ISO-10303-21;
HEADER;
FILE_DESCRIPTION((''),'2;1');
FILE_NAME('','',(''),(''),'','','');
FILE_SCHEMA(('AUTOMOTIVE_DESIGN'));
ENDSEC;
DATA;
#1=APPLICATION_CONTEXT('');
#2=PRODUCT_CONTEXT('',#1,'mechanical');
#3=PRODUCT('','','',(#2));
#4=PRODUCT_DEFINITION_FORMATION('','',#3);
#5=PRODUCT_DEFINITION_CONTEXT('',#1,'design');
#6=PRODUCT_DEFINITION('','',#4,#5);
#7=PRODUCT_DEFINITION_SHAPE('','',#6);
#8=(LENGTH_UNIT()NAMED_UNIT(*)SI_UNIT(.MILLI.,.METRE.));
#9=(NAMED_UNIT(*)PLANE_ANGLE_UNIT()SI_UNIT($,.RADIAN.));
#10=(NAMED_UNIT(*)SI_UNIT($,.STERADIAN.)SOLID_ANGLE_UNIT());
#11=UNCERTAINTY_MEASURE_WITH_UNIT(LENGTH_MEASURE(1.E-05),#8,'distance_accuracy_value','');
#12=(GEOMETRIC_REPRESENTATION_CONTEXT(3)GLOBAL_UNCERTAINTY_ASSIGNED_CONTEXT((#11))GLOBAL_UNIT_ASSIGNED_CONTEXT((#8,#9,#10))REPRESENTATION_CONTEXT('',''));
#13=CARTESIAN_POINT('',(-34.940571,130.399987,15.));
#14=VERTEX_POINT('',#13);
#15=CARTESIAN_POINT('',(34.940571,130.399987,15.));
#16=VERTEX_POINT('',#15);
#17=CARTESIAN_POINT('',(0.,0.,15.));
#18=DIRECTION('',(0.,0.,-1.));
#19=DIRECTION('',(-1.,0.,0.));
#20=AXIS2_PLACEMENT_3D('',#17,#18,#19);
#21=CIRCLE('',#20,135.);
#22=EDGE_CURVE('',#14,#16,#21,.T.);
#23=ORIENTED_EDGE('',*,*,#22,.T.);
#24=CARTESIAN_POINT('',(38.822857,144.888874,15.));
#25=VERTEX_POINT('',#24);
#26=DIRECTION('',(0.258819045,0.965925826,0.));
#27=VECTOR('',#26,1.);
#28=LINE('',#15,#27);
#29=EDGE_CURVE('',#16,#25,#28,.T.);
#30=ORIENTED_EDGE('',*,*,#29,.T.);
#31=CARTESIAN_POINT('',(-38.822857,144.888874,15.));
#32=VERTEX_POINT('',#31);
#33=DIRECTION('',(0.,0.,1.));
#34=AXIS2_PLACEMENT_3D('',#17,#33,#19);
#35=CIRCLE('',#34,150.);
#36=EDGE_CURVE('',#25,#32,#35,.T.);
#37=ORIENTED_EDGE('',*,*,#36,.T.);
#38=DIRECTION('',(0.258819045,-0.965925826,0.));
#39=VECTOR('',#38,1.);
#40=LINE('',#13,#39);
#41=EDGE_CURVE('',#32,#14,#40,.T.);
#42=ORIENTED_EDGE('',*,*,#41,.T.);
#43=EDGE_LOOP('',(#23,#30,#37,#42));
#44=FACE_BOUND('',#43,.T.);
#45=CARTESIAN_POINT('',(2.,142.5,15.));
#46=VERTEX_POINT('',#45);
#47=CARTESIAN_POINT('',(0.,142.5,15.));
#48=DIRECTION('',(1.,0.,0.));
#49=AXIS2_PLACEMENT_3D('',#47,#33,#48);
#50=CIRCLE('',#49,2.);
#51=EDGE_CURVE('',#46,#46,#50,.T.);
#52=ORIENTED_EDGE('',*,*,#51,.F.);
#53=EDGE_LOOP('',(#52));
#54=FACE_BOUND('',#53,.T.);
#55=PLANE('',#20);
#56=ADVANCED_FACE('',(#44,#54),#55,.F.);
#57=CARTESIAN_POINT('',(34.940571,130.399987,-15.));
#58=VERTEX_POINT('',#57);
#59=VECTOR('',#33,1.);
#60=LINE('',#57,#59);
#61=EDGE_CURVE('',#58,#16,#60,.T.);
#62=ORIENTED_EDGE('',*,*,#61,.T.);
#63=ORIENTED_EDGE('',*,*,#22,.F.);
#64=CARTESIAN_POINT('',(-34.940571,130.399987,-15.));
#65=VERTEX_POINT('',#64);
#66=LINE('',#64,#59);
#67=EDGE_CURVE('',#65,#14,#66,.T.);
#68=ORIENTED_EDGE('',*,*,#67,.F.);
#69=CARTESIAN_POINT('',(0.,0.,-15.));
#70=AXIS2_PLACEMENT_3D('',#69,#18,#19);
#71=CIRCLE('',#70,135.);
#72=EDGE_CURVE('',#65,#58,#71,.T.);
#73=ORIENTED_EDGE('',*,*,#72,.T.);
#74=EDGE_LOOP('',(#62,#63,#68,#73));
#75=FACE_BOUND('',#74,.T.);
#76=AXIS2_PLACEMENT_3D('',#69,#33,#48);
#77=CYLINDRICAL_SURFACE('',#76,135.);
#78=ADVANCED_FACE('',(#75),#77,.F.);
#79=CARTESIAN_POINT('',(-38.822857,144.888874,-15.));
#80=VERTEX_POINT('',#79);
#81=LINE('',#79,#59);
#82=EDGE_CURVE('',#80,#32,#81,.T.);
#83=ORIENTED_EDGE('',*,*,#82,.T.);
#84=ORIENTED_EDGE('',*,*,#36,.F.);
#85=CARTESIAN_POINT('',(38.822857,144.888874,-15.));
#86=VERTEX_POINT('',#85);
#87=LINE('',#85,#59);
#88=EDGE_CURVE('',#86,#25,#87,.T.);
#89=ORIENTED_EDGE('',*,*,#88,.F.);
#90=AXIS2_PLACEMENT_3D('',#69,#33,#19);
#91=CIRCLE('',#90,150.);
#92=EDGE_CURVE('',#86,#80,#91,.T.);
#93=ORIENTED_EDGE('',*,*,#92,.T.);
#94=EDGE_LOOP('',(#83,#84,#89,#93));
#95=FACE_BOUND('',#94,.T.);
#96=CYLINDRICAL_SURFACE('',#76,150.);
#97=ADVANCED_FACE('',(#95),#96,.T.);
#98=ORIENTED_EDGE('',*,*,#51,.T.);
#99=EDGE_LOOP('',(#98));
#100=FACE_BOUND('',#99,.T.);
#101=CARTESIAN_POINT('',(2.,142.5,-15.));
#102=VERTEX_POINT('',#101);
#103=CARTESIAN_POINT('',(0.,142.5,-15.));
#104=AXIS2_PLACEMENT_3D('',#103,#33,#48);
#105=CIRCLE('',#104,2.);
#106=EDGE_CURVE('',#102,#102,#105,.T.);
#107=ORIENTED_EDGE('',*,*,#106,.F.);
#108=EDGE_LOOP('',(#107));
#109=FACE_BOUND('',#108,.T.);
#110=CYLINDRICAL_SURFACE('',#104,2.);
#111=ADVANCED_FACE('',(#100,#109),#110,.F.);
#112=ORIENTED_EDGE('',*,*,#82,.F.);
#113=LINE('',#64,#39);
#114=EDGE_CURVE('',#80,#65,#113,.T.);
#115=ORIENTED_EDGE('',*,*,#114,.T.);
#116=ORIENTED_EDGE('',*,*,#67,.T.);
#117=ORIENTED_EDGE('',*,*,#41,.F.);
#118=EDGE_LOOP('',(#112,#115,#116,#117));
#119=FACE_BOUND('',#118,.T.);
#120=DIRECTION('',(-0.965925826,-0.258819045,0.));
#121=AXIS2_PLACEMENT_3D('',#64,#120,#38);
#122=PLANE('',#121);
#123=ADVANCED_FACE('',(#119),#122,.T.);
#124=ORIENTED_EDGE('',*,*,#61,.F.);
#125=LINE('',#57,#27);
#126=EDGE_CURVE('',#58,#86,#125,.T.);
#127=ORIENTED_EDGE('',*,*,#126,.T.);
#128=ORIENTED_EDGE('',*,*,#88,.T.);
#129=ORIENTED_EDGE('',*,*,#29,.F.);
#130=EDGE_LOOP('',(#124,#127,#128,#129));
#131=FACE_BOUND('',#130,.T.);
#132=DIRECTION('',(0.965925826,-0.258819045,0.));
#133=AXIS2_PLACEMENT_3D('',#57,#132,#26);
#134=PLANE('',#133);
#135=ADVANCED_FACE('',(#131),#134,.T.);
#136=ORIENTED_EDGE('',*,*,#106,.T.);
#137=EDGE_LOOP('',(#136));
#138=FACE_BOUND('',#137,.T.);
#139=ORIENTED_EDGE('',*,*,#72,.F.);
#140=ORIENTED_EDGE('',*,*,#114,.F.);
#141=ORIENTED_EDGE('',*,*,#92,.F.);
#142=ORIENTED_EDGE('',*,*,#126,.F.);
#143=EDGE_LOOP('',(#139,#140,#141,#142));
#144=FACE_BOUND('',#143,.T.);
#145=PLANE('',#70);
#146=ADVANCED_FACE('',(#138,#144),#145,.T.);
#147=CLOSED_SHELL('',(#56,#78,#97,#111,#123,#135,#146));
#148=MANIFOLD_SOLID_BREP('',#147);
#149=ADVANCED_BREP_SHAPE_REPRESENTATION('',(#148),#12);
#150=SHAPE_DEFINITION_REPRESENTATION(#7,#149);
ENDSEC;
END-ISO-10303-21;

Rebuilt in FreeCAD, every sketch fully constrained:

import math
import FreeCAD as App
import Part
import Sketcher

V = App.Vector
Q = App.Units.Quantity

doc = App.newDocument("Part")
body = doc.addObject("PartDesign::Body", "Body")

# Sketch on XY plane
sketch1 = body.newObject("Sketcher::SketchObject", "Sketch")
sketch1.AttachmentSupport = (doc.getObject("XY_Plane"), [""])
sketch1.MapMode = "FlatFace"
sketch1.addGeometry(Part.LineSegment(V(-38.8, 144.9, 0), V(-34.9, 130.4, 0)), False)
sketch1.addGeometry(Part.ArcOfCircle(Part.Circle(V(0, 0, 0), V(0, 0, 1), 135), math.radians(75), math.radians(105)), False)
sketch1.addGeometry(Part.LineSegment(V(34.9, 130.4, 0), V(38.8, 144.9, 0)), False)
sketch1.addGeometry(Part.ArcOfCircle(Part.Circle(V(0, 0, 0), V(0, 0, 1), 150), math.radians(75), math.radians(105)), False)
sketch1.addGeometry(Part.Circle(V(0, 142.5, 0), V(0, 0, 1), 2), False)
sketch1.addConstraint(Sketcher.Constraint("Coincident", 0, 2, 1, 2))
sketch1.addConstraint(Sketcher.Constraint("Coincident", 1, 1, 2, 1))
sketch1.addConstraint(Sketcher.Constraint("Coincident", 2, 2, 3, 1))
sketch1.addConstraint(Sketcher.Constraint("Coincident", 3, 2, 0, 1))
sketch1.addConstraint(Sketcher.Constraint("Coincident", 1, 3, -1, 1))
sketch1.addConstraint(Sketcher.Constraint("Coincident", 3, 3, -1, 1))
sketch1.addConstraint(Sketcher.Constraint("PointOnObject", 4, 3, -2))
sketch1.addConstraint(Sketcher.Constraint("Horizontal", 0, 2, 1, 1))
sketch1.addConstraint(Sketcher.Constraint("Horizontal", 2, 2, 3, 2))
sketch1.addConstraint(Sketcher.Constraint("Diameter", 4, Q("4 mm")))
sketch1.addConstraint(Sketcher.Constraint("Radius", 1, Q("135 mm")))
sketch1.addConstraint(Sketcher.Constraint("Radius", 3, Q("150 mm")))
sketch1.addConstraint(Sketcher.Constraint("Angle", 0, Q("-75 deg")))
sketch1.addConstraint(Sketcher.Constraint("DistanceY", -1, 1, 4, 3, Q("142.5 mm")))
sketch1.addConstraint(Sketcher.Constraint("DistanceX", 0, 2, -1, 1, Q("34.940571 mm")))
pad1 = body.newObject("PartDesign::Pad", "Pad")
pad1.Profile = sketch1
pad1.Type = "TwoLengths"
pad1.Length = 15
pad1.Length2 = 15

doc.recompute()
